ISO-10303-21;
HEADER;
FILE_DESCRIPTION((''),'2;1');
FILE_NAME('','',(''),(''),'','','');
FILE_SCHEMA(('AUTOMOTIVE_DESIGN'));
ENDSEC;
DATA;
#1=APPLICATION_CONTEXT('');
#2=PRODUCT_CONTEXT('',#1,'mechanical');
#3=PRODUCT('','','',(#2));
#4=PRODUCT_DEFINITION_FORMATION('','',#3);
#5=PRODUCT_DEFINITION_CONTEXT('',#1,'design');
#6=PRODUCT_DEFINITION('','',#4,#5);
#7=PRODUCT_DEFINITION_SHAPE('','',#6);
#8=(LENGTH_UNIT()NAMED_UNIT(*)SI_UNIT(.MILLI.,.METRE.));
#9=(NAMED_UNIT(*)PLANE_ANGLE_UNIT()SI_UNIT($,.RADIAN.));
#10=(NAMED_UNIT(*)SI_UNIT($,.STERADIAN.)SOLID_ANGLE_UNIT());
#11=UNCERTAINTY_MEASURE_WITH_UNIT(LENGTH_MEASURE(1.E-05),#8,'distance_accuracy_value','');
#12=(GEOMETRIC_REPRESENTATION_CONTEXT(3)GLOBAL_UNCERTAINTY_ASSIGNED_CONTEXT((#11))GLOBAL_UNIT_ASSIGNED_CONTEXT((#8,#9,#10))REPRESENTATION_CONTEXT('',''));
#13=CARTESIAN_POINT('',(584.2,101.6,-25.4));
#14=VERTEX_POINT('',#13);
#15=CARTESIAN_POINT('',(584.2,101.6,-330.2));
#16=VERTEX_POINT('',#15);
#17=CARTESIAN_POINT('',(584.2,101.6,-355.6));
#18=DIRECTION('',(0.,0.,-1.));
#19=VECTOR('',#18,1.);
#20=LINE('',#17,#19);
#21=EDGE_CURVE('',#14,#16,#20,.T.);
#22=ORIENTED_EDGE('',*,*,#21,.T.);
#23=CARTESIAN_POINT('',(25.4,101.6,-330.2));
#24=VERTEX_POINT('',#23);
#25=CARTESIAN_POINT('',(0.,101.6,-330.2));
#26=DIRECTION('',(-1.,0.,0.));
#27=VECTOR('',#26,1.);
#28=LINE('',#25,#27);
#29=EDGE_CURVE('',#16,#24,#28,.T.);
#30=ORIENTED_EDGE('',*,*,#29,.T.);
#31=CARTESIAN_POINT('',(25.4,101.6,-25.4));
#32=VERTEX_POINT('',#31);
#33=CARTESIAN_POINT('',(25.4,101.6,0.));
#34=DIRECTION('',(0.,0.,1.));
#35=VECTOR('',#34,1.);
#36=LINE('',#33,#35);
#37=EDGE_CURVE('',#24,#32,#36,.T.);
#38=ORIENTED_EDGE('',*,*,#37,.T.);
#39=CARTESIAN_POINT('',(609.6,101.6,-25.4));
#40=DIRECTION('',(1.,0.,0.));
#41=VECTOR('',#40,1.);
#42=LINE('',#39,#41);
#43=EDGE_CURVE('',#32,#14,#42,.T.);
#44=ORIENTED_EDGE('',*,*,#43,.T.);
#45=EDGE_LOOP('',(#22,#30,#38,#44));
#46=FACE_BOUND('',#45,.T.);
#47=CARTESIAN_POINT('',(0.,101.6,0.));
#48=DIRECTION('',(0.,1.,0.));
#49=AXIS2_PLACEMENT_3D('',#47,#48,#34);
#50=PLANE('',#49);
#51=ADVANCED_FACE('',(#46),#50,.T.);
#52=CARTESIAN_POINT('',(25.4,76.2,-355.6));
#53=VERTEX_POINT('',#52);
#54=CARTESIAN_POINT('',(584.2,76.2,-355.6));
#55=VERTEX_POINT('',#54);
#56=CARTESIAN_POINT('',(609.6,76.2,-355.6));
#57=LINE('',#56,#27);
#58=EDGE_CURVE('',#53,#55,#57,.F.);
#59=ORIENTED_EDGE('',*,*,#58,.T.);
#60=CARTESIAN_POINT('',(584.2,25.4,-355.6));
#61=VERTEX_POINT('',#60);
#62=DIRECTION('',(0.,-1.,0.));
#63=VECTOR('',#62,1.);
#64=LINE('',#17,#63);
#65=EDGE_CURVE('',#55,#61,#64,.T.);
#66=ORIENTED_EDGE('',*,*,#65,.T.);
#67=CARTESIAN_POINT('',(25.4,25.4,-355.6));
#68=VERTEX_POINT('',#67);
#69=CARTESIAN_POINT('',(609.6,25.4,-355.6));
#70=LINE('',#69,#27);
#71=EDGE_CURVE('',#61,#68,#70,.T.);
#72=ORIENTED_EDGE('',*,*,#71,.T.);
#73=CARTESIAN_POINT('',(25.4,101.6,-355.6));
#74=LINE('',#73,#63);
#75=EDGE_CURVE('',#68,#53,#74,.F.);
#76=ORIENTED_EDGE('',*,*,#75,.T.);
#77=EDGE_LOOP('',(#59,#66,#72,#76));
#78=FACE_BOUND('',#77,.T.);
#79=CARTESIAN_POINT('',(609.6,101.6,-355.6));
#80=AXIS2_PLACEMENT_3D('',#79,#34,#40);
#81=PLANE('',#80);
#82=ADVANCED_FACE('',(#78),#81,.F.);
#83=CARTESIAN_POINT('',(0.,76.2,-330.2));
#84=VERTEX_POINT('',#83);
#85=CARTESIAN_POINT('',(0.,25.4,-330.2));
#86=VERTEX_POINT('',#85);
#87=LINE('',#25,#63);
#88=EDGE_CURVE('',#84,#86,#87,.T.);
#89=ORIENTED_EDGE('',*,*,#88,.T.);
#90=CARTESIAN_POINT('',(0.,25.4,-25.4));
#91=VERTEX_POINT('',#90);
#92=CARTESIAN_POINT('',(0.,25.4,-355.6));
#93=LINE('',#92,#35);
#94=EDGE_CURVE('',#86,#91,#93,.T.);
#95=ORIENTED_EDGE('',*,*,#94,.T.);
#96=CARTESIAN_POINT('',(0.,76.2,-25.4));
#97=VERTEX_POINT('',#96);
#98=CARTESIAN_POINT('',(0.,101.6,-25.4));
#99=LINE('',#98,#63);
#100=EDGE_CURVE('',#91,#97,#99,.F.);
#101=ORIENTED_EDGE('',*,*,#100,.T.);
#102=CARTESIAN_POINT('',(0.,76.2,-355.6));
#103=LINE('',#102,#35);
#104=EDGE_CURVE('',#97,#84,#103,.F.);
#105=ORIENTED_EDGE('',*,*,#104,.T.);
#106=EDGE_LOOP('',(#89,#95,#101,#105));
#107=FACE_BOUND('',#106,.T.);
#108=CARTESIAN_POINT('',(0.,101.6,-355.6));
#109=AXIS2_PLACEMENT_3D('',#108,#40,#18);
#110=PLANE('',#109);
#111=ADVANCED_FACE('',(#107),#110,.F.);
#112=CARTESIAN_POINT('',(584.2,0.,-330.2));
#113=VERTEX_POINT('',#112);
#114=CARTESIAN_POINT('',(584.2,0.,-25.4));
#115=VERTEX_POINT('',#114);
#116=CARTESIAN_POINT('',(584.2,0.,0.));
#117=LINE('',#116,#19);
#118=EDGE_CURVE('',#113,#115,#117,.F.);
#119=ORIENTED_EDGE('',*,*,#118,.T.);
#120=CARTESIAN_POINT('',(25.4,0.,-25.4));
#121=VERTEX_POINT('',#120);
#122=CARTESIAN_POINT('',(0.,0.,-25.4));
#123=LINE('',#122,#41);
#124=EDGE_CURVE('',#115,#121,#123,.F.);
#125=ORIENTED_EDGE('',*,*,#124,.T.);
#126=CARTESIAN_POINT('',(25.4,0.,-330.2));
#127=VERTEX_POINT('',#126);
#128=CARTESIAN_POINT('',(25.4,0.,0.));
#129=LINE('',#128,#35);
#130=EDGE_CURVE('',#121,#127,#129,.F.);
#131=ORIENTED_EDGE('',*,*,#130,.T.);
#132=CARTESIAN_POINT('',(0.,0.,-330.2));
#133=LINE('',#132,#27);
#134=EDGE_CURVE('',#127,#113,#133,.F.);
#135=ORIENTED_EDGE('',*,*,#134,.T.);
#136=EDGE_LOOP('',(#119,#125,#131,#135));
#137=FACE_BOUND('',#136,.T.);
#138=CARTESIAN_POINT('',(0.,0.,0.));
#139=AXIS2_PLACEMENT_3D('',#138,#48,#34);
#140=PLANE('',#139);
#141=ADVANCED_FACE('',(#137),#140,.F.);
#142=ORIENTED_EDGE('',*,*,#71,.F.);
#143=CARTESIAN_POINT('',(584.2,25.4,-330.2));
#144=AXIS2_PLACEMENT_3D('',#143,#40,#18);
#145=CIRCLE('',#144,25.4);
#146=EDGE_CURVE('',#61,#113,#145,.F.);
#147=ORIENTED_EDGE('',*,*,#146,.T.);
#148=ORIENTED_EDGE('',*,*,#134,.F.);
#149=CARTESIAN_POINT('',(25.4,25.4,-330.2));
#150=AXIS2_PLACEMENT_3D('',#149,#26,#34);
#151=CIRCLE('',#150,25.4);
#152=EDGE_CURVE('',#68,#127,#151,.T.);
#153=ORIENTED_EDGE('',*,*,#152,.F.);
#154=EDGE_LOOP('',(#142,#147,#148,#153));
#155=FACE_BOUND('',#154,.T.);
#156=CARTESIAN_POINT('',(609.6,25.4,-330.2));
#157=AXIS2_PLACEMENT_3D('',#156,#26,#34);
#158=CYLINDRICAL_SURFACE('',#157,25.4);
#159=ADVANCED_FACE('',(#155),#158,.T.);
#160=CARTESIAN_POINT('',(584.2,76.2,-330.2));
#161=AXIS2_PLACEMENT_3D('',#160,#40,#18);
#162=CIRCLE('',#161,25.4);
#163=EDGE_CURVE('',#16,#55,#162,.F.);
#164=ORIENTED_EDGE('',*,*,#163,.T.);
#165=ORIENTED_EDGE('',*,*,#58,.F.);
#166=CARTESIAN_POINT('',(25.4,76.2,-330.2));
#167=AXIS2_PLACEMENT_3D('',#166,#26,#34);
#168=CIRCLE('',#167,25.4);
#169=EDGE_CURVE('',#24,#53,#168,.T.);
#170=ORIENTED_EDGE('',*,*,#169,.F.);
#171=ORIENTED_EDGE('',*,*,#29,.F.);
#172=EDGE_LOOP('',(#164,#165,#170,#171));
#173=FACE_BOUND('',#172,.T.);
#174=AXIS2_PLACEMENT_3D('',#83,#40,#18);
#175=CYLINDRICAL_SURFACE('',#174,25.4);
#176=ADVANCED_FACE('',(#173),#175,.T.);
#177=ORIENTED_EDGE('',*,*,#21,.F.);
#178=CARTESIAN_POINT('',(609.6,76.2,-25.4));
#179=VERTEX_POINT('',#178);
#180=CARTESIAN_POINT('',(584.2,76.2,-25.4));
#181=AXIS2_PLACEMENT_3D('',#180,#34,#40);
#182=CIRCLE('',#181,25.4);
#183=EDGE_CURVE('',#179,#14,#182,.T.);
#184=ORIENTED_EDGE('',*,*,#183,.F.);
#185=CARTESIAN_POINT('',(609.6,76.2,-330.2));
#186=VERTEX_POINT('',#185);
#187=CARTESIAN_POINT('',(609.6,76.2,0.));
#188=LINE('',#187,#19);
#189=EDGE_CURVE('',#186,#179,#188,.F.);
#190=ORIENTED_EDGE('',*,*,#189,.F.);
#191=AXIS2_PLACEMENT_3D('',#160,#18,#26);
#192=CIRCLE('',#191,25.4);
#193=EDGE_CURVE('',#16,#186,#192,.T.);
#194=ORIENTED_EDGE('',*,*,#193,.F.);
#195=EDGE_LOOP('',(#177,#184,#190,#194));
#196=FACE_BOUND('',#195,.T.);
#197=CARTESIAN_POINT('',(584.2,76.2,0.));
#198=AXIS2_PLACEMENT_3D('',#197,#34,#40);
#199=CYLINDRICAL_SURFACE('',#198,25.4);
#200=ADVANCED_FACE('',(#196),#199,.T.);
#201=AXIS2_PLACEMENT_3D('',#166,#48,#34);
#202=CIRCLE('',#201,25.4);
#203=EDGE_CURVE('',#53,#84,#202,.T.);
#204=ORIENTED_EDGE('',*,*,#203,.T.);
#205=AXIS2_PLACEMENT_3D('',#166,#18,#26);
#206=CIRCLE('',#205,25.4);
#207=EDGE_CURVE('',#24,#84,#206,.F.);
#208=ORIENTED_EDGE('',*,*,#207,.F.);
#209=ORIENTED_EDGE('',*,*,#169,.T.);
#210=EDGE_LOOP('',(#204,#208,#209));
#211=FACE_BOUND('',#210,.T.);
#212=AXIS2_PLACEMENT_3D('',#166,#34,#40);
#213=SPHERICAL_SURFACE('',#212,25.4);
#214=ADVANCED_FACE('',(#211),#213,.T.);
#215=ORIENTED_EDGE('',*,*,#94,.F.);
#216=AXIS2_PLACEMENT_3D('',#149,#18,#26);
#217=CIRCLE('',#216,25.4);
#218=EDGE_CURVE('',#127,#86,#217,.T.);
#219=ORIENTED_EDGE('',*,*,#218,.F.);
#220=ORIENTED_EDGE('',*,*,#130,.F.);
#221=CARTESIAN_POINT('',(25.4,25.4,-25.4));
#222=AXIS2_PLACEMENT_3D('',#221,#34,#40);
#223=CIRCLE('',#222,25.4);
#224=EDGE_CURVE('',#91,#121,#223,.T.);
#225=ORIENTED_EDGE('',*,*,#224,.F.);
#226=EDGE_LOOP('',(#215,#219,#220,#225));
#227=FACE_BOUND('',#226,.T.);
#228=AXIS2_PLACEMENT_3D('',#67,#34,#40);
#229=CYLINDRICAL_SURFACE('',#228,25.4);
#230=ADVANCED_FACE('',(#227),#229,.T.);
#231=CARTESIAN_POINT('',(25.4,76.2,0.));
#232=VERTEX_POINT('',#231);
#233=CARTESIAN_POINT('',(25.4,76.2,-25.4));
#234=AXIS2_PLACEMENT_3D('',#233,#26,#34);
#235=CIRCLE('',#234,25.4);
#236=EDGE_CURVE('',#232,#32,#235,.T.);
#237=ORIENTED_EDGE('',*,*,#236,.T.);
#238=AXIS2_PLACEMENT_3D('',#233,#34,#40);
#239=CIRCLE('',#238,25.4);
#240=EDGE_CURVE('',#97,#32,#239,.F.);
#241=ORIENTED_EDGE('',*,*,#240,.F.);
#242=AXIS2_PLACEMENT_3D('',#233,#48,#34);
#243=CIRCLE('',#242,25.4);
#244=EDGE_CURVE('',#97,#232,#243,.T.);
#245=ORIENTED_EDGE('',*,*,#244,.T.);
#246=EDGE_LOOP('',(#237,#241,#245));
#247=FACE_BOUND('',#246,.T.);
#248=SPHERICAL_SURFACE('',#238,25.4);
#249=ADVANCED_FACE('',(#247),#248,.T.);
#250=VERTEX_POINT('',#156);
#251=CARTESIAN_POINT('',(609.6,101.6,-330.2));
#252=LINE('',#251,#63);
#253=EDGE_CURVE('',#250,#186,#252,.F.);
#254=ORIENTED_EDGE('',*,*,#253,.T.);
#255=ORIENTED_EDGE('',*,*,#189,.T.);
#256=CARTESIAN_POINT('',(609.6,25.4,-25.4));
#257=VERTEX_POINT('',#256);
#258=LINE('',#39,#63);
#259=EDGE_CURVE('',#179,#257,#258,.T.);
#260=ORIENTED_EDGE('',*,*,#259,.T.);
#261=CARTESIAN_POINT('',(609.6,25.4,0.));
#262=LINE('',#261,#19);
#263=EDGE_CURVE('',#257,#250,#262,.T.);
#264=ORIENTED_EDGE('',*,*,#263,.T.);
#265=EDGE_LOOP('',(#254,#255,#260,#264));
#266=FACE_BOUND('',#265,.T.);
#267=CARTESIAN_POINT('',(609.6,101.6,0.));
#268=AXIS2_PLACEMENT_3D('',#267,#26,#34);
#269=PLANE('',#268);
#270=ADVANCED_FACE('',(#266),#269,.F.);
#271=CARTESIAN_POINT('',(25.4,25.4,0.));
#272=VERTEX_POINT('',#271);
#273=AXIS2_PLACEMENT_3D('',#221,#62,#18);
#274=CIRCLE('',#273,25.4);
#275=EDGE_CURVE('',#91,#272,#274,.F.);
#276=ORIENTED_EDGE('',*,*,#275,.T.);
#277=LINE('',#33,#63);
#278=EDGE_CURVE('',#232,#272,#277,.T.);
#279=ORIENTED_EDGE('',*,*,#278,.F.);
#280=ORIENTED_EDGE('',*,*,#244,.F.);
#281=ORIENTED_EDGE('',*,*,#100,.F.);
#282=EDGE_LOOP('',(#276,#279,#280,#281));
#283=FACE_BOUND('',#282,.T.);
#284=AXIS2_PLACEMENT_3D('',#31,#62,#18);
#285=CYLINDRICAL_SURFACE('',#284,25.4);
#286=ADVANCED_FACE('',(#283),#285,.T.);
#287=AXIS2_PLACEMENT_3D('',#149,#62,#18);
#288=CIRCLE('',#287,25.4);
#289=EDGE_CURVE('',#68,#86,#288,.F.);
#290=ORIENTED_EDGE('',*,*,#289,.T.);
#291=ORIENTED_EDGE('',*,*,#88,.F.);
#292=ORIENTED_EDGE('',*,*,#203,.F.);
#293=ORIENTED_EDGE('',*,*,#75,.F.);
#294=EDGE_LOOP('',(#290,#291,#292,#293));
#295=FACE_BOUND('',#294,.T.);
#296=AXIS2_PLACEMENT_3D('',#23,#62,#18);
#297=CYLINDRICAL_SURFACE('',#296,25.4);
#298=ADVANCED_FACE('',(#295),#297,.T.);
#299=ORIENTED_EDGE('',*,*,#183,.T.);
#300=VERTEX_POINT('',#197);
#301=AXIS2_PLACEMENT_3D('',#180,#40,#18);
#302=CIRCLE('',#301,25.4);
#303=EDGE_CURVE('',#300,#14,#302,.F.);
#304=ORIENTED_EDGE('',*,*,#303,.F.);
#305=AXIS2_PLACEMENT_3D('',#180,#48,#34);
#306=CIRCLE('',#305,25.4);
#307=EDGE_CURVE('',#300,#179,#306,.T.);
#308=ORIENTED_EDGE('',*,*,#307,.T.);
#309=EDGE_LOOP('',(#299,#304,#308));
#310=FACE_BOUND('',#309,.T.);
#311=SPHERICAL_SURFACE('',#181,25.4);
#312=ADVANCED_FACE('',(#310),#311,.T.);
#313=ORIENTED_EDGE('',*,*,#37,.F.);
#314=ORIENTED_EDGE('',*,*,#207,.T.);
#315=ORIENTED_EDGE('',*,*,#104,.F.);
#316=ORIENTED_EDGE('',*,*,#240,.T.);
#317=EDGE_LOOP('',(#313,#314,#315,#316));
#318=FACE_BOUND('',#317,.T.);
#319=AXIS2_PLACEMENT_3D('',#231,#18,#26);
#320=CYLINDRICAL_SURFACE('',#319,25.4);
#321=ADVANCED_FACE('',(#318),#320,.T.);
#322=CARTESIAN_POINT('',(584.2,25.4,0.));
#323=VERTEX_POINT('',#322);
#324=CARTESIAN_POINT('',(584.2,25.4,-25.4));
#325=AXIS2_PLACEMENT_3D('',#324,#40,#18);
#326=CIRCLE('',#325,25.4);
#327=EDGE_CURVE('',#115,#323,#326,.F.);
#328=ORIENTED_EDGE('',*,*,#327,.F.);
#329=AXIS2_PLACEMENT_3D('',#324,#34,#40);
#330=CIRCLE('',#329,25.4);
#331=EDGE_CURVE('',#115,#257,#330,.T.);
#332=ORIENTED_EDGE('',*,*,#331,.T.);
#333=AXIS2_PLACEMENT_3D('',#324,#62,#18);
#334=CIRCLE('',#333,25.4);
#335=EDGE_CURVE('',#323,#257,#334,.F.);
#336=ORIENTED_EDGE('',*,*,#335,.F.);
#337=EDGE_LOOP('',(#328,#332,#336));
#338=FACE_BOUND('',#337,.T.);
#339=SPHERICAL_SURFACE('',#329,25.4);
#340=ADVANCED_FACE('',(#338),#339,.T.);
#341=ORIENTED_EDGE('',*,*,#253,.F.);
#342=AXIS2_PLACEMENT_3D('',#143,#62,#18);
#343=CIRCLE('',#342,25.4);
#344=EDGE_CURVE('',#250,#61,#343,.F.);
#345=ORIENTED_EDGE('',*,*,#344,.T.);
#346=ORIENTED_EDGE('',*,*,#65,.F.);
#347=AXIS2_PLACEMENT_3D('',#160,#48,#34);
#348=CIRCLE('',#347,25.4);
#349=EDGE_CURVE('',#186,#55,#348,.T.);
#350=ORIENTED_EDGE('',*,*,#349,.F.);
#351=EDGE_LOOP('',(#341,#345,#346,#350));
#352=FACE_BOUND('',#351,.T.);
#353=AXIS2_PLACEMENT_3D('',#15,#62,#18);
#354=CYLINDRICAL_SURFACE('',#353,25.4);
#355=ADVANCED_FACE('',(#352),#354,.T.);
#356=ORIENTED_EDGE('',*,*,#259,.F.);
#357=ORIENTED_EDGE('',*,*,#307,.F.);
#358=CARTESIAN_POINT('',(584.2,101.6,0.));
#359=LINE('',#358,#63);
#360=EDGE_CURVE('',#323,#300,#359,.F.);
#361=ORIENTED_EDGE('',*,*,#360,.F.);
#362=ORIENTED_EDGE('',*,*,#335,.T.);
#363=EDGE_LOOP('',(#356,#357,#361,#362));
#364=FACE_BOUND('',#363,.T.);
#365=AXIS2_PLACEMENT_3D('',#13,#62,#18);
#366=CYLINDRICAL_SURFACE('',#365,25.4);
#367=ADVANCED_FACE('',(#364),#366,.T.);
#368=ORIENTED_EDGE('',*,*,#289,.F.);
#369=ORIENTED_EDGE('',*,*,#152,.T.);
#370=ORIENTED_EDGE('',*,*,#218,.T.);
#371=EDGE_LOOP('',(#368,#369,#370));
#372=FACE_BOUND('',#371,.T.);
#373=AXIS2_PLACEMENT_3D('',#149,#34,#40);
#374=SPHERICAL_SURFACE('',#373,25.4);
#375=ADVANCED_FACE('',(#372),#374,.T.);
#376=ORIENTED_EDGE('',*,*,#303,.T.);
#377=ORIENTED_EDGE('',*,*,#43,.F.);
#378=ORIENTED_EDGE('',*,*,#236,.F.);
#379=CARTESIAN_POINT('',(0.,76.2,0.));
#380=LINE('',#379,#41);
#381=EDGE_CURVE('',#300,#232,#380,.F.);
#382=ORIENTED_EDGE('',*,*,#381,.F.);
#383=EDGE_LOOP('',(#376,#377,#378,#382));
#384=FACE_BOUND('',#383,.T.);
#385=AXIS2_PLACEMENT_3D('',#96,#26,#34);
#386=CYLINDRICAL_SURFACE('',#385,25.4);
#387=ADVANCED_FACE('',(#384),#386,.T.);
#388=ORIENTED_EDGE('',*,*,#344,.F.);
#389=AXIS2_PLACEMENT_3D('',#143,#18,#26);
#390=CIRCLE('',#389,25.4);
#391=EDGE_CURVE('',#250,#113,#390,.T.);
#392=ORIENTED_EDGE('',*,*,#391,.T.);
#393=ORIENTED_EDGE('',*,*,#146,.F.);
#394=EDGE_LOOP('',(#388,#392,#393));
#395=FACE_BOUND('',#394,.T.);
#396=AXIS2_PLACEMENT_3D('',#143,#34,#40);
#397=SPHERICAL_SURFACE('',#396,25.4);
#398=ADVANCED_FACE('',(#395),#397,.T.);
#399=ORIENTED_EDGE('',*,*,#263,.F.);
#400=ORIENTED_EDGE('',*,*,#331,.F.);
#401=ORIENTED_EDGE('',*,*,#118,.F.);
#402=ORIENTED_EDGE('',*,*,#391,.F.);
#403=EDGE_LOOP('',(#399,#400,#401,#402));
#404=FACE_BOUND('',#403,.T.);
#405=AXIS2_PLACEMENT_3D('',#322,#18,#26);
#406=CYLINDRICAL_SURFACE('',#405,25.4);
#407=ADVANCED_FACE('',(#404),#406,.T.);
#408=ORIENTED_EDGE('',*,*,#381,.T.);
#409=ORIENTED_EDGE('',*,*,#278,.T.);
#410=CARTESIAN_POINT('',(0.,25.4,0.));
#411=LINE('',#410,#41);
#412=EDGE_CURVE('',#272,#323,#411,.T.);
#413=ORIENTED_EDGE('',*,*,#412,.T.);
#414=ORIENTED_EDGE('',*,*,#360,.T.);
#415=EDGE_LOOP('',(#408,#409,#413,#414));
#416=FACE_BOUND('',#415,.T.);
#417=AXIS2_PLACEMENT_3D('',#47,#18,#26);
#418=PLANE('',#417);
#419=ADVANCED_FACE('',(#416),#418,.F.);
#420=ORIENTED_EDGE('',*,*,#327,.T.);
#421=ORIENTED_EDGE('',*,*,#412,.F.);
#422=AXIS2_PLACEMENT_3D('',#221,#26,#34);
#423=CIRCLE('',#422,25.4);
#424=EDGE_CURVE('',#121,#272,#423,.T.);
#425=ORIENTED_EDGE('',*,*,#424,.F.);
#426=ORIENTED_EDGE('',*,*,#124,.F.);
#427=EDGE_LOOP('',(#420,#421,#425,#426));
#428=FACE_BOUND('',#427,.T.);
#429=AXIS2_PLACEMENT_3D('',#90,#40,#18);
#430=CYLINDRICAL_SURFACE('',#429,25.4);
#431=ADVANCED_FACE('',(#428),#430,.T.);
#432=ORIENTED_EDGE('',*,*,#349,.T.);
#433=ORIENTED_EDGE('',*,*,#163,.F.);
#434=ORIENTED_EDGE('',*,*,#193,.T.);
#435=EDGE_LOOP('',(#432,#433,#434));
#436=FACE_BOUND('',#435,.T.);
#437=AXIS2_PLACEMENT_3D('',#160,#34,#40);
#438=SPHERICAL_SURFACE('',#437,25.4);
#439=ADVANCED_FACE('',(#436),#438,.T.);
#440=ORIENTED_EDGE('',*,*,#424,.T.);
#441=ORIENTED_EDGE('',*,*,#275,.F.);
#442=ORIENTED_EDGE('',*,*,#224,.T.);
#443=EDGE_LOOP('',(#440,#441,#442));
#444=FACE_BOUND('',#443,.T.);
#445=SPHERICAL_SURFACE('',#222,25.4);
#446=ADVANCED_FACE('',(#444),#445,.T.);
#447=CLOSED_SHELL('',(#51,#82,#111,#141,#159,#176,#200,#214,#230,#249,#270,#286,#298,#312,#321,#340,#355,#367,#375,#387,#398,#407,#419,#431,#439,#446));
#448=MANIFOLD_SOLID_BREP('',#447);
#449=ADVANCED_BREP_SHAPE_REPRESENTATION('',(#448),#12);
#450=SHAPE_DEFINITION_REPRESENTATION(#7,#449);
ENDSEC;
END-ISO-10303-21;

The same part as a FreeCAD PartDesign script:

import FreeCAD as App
import Part
import Sketcher

V = App.Vector
Q = App.Units.Quantity

doc = App.newDocument("Part")
params = doc.addObject("Spreadsheet::Sheet", "Params")
for row, (alias, value) in enumerate([
    ("sketch1_width", "24 in"),
    ("sketch1_height", "14 in"),
    ("pad1_length", "4 in"),
    ("fillet_radius", "1 in"),
], start=1):
    params.set(f"A{row}", alias)
    params.set(f"B{row}", "=" + value)
    params.setAlias(f"B{row}", alias)

body = doc.addObject("PartDesign::Body", "Body")

# Sketch on XZ plane
sketch1 = body.newObject("Sketcher::SketchObject", "Sketch")
sketch1.AttachmentSupport = (doc.getObject("XZ_Plane"), [""])
sketch1.MapMode = "FlatFace"
sketch1.addGeometry(Part.LineSegment(V(0, -356, 0), V(0, 0, 0)), False)
sketch1.addGeometry(Part.LineSegment(V(0, 0, 0), V(610, 0, 0)), False)
sketch1.addGeometry(Part.LineSegment(V(610, 0, 0), V(610, -356, 0)), False)
sketch1.addGeometry(Part.LineSegment(V(610, -356, 0), V(0, -356, 0)), False)
sketch1.addConstraint(Sketcher.Constraint("Coincident", 0, 2, 1, 1))
sketch1.addConstraint(Sketcher.Constraint("Coincident", 1, 2, 2, 1))
sketch1.addConstraint(Sketcher.Constraint("Coincident", 2, 2, 3, 1))
sketch1.addConstraint(Sketcher.Constraint("Coincident", 3, 2, 0, 1))
sketch1.addConstraint(Sketcher.Constraint("Vertical", 0))
sketch1.addConstraint(Sketcher.Constraint("Horizontal", 1))
sketch1.addConstraint(Sketcher.Constraint("Vertical", 2))
sketch1.addConstraint(Sketcher.Constraint("Horizontal", 3))
sketch1.addConstraint(Sketcher.Constraint("Coincident", 0, 2, -1, 1))
sketch1.addConstraint(Sketcher.Constraint("DistanceX", 1, 1, 1, 2, Q("24 in")))
sketch1.addConstraint(Sketcher.Constraint("DistanceY", 0, 1, 0, 2, Q("14 in")))
sketch1.setExpression("Constraints[9]", "Params.sketch1_width")
sketch1.setExpression("Constraints[10]", "Params.sketch1_height")
pad1 = body.newObject("PartDesign::Pad", "Pad")
pad1.Profile = sketch1
pad1.setExpression("Length", "Params.pad1_length")
pad1.Reversed = True
doc.recompute()

fillet = body.newObject("PartDesign::Fillet", "Fillet")
fillet.Base = (pad1, ["Edge1"])
fillet.UseAllEdges = True
fillet.setExpression("Radius", "Params.fillet_radius")

doc.recompute()
